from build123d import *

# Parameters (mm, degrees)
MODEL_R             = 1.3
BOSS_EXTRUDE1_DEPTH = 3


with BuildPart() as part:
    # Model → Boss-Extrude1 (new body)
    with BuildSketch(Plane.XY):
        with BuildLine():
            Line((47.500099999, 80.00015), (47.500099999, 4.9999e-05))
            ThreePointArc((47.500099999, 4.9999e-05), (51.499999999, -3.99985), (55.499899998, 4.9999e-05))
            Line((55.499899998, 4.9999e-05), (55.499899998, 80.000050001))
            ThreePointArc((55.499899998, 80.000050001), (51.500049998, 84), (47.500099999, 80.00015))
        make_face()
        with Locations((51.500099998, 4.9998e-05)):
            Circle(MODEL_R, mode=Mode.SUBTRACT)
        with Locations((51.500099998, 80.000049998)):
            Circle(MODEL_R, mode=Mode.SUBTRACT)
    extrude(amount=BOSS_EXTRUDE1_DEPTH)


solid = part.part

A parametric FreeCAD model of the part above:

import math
import FreeCAD as App
import Part
import Sketcher
from FreeCAD import Vector
Q = App.Units.Quantity

doc = App.newDocument("Part")
params = doc.addObject("Spreadsheet::Sheet", "Params")
for row, (alias, value) in enumerate([
    ("sketch1_diameter", "2.6 mm"),
    ("sketch1_height", "80 mm"),
    ("pad1_length", "3 mm"),
], start=1):
    params.set(f"A{row}", alias)
    params.set(f"B{row}", "=" + value)
    params.setAlias(f"B{row}", alias)

body = doc.addObject("PartDesign::Body", "Body")

sketch1 = doc.addObject("Sketcher::SketchObject", "Sketch")
body.addObject(sketch1)
sketch1.AttachmentSupport = (doc.XY_Plane, [""])
sketch1.MapMode = "FlatFace"
sketch1.addGeometry(Part.LineSegment(Vector(47.5, 80, 0), Vector(47.5, 0, 0)), False)
sketch1.addGeometry(Part.ArcOfCircle(Part.Circle(Vector(51.5, 0, 0), Vector(0, 0, 1), 4), math.radians(-180), math.radians(0)), False)
sketch1.addGeometry(Part.LineSegment(Vector(55.5, 0, 0), Vector(55.5, 80, 0)), False)
sketch1.addGeometry(Part.ArcOfCircle(Part.Circle(Vector(51.5, 80, 0), Vector(0, 0, 1), 4), math.radians(0), math.radians(180)), False)
sketch1.addGeometry(Part.Circle(Vector(51.5, 0, 0), Vector(0, 0, 1), 1.3), False)
sketch1.addGeometry(Part.Circle(Vector(51.5, 80, 0), Vector(0, 0, 1), 1.3), False)
sketch1.addConstraint(Sketcher.Constraint("Tangent", 0, 2, 1, 1))
sketch1.addConstraint(Sketcher.Constraint("Tangent", 1, 2, 2, 1))
sketch1.addConstraint(Sketcher.Constraint("Coincident", 2, 2, 3, 1))
sketch1.addConstraint(Sketcher.Constraint("Coincident", 3, 2, 0, 1))
sketch1.addConstraint(Sketcher.Constraint("Vertical", 0))
sketch1.addConstraint(Sketcher.Constraint("Vertical", 2))
sketch1.addConstraint(Sketcher.Constraint("Equal", 4, 5))
sketch1.addConstraint(Sketcher.Constraint("Horizontal", 1, 3, 4, 3))
sketch1.addConstraint(Sketcher.Constraint("Horizontal", 5, 3, 2, 2))
sketch1.addConstraint(Sketcher.Constraint("Vertical", 4, 3, 5, 3))
sketch1.addConstraint(Sketcher.Constraint("Diameter", 4, Q("2.6 mm")))
sketch1.addConstraint(Sketcher.Constraint("DistanceY", 2, 1, 2, 2, Q("80 mm")))
sketch1.addConstraint(Sketcher.Constraint("DistanceX", 0, 2, 4, 3, Q("4 mm")))
sketch1.addConstraint(Sketcher.Constraint("DistanceX", -1, 1, 1, 3, Q("51.5 mm")))
sketch1.addConstraint(Sketcher.Constraint("Radius", 1, Q("3.9999 mm")))
sketch1.addConstraint(Sketcher.Constraint("DistanceY", 0, 2, 0, 1, Q("80.0001 mm")))
sketch1.addConstraint(Sketcher.Constraint("DistanceY", -1, 1, 3, 3, Q("80.0001 mm")))
sketch1.addConstraint(Sketcher.Constraint("DistanceY", -1, 1, 5, 3, Q("80.00005 mm")))
sketch1.setExpression("Constraints[10]", "Params.sketch1_diameter")
sketch1.setExpression("Constraints[11]", "Params.sketch1_height")
pad1 = doc.addObject("PartDesign::Pad", "Pad")
body.addObject(pad1)
pad1.Profile = sketch1
pad1.setExpression("Length", "Params.pad1_length")

doc.recompute()
